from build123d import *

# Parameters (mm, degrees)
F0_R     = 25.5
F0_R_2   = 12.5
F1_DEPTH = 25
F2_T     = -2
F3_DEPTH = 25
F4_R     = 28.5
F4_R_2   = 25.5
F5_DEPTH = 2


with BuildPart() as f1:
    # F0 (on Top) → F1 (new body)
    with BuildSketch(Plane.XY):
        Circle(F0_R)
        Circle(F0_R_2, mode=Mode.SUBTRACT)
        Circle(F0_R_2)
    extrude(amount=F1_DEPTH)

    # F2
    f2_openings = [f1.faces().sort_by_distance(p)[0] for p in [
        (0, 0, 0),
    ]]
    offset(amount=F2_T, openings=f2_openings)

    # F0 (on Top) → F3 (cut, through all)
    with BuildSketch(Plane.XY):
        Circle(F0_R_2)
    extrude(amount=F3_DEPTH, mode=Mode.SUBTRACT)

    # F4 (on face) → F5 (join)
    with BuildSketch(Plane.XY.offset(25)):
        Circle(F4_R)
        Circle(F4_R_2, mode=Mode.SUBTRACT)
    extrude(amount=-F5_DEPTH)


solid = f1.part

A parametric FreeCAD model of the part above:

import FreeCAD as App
import Part
import Sketcher

V = App.Vector


def faces_at(feature, points):
    """Names of the faces that lie closest to the given points."""
    faces = feature.Shape.Faces
    near = lambda p: min(range(len(faces)), key=lambda i: faces[i].distToShape(Part.Vertex(*p))[0])
    return sorted({f"Face{near(p) + 1}" for p in points})

doc = App.newDocument("Part")
params = doc.addObject("Spreadsheet::Sheet", "Params")
for row, (alias, value) in enumerate([
    ("sketch1_diameter", "51 mm"),
    ("pad1_length", "25 mm"),
    ("thickness_wall", "2 mm"),
    ("sketch2_diameter", "25 mm"),
    ("sketch3_diameter", "57 mm"),
    ("sketch3_diameter2", "51 mm"),
    ("pad2_length", "2 mm"),
], start=1):
    params.set(f"A{row}", alias)
    params.set(f"B{row}", "=" + value)
    params.setAlias(f"B{row}", alias)

body = doc.addObject("PartDesign::Body", "Body")

# Sketch on XY plane
sketch1 = body.newObject("Sketcher::SketchObject", "Sketch")
sketch1.AttachmentSupport = (doc.getObject("XY_Plane"), [""])
sketch1.MapMode = "FlatFace"
sketch1.addGeometry(Part.Circle(V(0, 0, 0), V(0, 0, 1), 26), False)
sketch1.addConstraint([
    Sketcher.Constraint("Coincident", 0, 3, -1, 1),
    Sketcher.Constraint("Diameter", 0, 51.0),
])
sketch1.setExpression("Constraints[1]", "Params.sketch1_diameter")
pad1 = body.newObject("PartDesign::Pad", "Pad")
pad1.Profile = sketch1
pad1.setExpression("Length", "Params.pad1_length")
doc.recompute()

thickness = body.newObject("PartDesign::Thickness", "Thickness")
thickness.Base = (pad1, faces_at(pad1, [(0, 0, 0)]))
thickness.setExpression("Value", "Params.thickness_wall")
thickness.Reversed = True
thickness.Join = "Arc"

# Sketch on XY plane
sketch2 = body.newObject("Sketcher::SketchObject", "Sketch001")
sketch2.AttachmentSupport = (doc.getObject("XY_Plane"), [""])
sketch2.MapMode = "FlatFace"
sketch2.addGeometry(Part.Circle(V(0, 0, 0), V(0, 0, 1), 12), False)
sketch2.addConstraint([
    Sketcher.Constraint("Coincident", 0, 3, -1, 1),
    Sketcher.Constraint("Diameter", 0, 25.0),
])
sketch2.setExpression("Constraints[1]", "Params.sketch2_diameter")
pocket1 = body.newObject("PartDesign::Pocket", "Pocket")
pocket1.Profile = sketch2
pocket1.Type = "ThroughAll"
pocket1.Reversed = True

# Sketch on XY plane
sketch3 = body.newObject("Sketcher::SketchObject", "Sketch002")
sketch3.AttachmentSupport = (doc.getObject("XY_Plane"), [""])
sketch3.MapMode = "FlatFace"
sketch3.AttachmentOffset = App.Placement(V(0, 0, 25), App.Rotation())
sketch3.addGeometry([
    Part.Circle(V(0, 0, 0), V(0, 0, 1), 28),
    Part.Circle(V(0, 0, 0), V(0, 0, 1), 26),
], False)
sketch3.addConstraint([
    Sketcher.Constraint("Coincident", 0, 3, -1, 1),
    Sketcher.Constraint("Coincident", 1, 3, -1, 1),
    Sketcher.Constraint("Diameter", 0, 57.0),
    Sketcher.Constraint("Diameter", 1, 51.0),
])
sketch3.setExpression("Constraints[2]", "Params.sketch3_diameter")
sketch3.setExpression("Constraints[3]", "Params.sketch3_diameter2")
pad2 = body.newObject("PartDesign::Pad", "Pad001")
pad2.Profile = sketch3
pad2.setExpression("Length", "Params.pad2_length")
pad2.Reversed = True

doc.recompute()
